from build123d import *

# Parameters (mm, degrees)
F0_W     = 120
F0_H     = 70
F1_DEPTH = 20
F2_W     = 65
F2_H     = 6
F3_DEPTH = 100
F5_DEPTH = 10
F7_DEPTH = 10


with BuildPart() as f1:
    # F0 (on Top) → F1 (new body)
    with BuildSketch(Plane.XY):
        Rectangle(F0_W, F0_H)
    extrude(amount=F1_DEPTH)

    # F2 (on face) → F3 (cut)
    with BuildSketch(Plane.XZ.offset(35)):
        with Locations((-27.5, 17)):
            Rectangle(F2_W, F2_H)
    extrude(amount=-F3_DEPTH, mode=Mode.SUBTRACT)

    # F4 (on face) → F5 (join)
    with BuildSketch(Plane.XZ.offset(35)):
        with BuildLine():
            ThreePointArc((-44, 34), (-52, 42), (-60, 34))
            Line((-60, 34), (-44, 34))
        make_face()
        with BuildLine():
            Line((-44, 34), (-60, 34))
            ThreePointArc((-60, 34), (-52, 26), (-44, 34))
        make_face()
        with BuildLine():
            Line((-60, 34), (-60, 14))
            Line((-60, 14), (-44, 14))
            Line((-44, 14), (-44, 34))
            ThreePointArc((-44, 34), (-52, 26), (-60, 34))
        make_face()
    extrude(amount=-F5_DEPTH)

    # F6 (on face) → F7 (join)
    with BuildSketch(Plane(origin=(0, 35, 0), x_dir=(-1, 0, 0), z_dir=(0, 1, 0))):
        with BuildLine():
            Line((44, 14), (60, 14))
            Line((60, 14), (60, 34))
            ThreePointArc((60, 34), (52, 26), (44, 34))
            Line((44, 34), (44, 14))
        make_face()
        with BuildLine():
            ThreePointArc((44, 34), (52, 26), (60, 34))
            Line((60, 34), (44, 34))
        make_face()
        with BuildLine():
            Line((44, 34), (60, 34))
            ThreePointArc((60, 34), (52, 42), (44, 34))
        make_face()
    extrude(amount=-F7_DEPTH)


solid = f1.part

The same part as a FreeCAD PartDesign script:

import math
import FreeCAD as App
import Part
import Sketcher

V = App.Vector


def add_polygon(sketch, points):
    """Adds a closed chain of lines whose ends are joined by coincident constraints."""
    first, n = sketch.GeometryCount, len(points)
    for a, b in zip(points, points[1:] + points[:1]):
        sketch.addGeometry(Part.LineSegment(App.Vector(*a, 0), App.Vector(*b, 0)), False)
    for i in range(n):
        sketch.addConstraint(Sketcher.Constraint("Coincident", first + i, 2, first + (i + 1) % n, 1))

doc = App.newDocument("Part")
params = doc.addObject("Spreadsheet::Sheet", "Params")
for row, (alias, value) in enumerate([
    ("sketch1_width", "120 mm"),
    ("sketch1_height", "70 mm"),
    ("pad1_length", "20 mm"),
    ("sketch2_width", "65 mm"),
    ("sketch2_height", "6 mm"),
    ("pocket1_length", "100 mm"),
    ("sketch3_radius", "8 mm"),
    ("sketch3_height", "20 mm"),
    ("pad2_length", "10 mm"),
    ("sketch4_radius", "8 mm"),
    ("sketch4_height", "20 mm"),
    ("pad3_length", "10 mm"),
], start=1):
    params.set(f"A{row}", alias)
    params.set(f"B{row}", "=" + value)
    params.setAlias(f"B{row}", alias)

body = doc.addObject("PartDesign::Body", "Body")

sketch1 = body.newObject("Sketcher::SketchObject", "Sketch")
sketch1.AttachmentSupport = (doc.getObject("XY_Plane"), [""])
sketch1.MapMode = "FlatFace"
add_polygon(sketch1, [(-60, 35), (-60, -35), (60, -35), (60, 35)])
sketch1.addConstraint(Sketcher.Constraint("Vertical", 0))
sketch1.addConstraint(Sketcher.Constraint("Horizontal", 1))
sketch1.addConstraint(Sketcher.Constraint("Vertical", 2))
sketch1.addConstraint(Sketcher.Constraint("Horizontal", 3))
sketch1.addConstraint(Sketcher.Constraint("Symmetric", 0, 2, 2, 2, -1, 1))
sketch1.addConstraint(Sketcher.Constraint("DistanceX", 1, 1, 1, 2, 120.0))
sketch1.addConstraint(Sketcher.Constraint("DistanceY", 0, 2, 0, 1, 70.0))
sketch1.setExpression("Constraints[9]", "Params.sketch1_width")
sketch1.setExpression("Constraints[10]", "Params.sketch1_height")
pad1 = body.newObject("PartDesign::Pad", "Pad")
pad1.Profile = sketch1
pad1.setExpression("Length", "Params.pad1_length")

sketch2 = body.newObject("Sketcher::SketchObject", "Sketch001")
sketch2.AttachmentSupport = (doc.getObject("XZ_Plane"), [""])
sketch2.MapMode = "FlatFace"
sketch2.AttachmentOffset = App.Placement(V(0, 0, 35), App.Rotation())
add_polygon(sketch2, [(-60, 20), (-60, 14), (5, 14), (5, 20)])
sketch2.addConstraint(Sketcher.Constraint("Vertical", 0))
sketch2.addConstraint(Sketcher.Constraint("Horizontal", 1))
sketch2.addConstraint(Sketcher.Constraint("Vertical", 2))
sketch2.addConstraint(Sketcher.Constraint("Horizontal", 3))
sketch2.addConstraint(Sketcher.Constraint("DistanceX", 1, 1, 1, 2, 65.0))
sketch2.addConstraint(Sketcher.Constraint("DistanceY", 0, 2, 0, 1, 6.0))
sketch2.addConstraint(Sketcher.Constraint("DistanceX", 0, 2, -1, 1, 60.0))
sketch2.addConstraint(Sketcher.Constraint("DistanceY", -1, 1, 0, 2, 14.0))
sketch2.setExpression("Constraints[8]", "Params.sketch2_width")
sketch2.setExpression("Constraints[9]", "Params.sketch2_height")
pocket1 = body.newObject("PartDesign::Pocket", "Pocket")
pocket1.Profile = sketch2
pocket1.setExpression("Length", "Params.pocket1_length")

sketch3 = body.newObject("Sketcher::SketchObject", "Sketch002")
sketch3.AttachmentSupport = (doc.getObject("XZ_Plane"), [""])
sketch3.MapMode = "FlatFace"
sketch3.AttachmentOffset = App.Placement(V(0, 0, 35), App.Rotation())
sketch3.addGeometry(Part.ArcOfCircle(Part.Circle(V(-52, 34, 0), V(0, 0, 1), 8), math.radians(0), math.radians(180)), False)
sketch3.addGeometry(Part.LineSegment(V(-60, 34, 0), V(-60, 14, 0)), False)
sketch3.addGeometry(Part.LineSegment(V(-60, 14, 0), V(-44, 14, 0)), False)
sketch3.addGeometry(Part.LineSegment(V(-44, 14, 0), V(-44, 34, 0)), False)
sketch3.addConstraint(Sketcher.Constraint("Tangent", 0, 2, 1, 1))
sketch3.addConstraint(Sketcher.Constraint("Coincident", 1, 2, 2, 1))
sketch3.addConstraint(Sketcher.Constraint("Coincident", 2, 2, 3, 1))
sketch3.addConstraint(Sketcher.Constraint("Tangent", 3, 2, 0, 1))
sketch3.addConstraint(Sketcher.Constraint("Vertical", 1))
sketch3.addConstraint(Sketcher.Constraint("Horizontal", 2))
sketch3.addConstraint(Sketcher.Constraint("Vertical", 3))
sketch3.addConstraint(Sketcher.Constraint("Radius", 0, 8.0))
sketch3.addConstraint(Sketcher.Constraint("DistanceY", 1, 2, 1, 1, 20.0))
sketch3.addConstraint(Sketcher.Constraint("DistanceX", 0, 3, -1, 1, 52.0))
sketch3.addConstraint(Sketcher.Constraint("DistanceY", -1, 1, 0, 3, 34.0))
sketch3.setExpression("Constraints[7]", "Params.sketch3_radius")
sketch3.setExpression("Constraints[8]", "Params.sketch3_height")
pad2 = body.newObject("PartDesign::Pad", "Pad001")
pad2.Profile = sketch3
pad2.setExpression("Length", "Params.pad2_length")
pad2.Reversed = True

sketch4 = body.newObject("Sketcher::SketchObject", "Sketch003")
sketch4.AttachmentSupport = (doc.getObject("XZ_Plane"), [""])
sketch4.MapMode = "FlatFace"
sketch4.AttachmentOffset = App.Placement(V(0, 0, -35), App.Rotation())
sketch4.addGeometry(Part.LineSegment(V(-44, 34, 0), V(-44, 14, 0)), False)
sketch4.addGeometry(Part.LineSegment(V(-44, 14, 0), V(-60, 14, 0)), False)
sketch4.addGeometry(Part.LineSegment(V(-60, 14, 0), V(-60, 34, 0)), False)
sketch4.addGeometry(Part.ArcOfCircle(Part.Circle(V(-52, 34, 0), V(0, 0, 1), 8), math.radians(0), math.radians(180)), False)
sketch4.addConstraint(Sketcher.Constraint("Coincident", 0, 2, 1, 1))
sketch4.addConstraint(Sketcher.Constraint("Coincident", 1, 2, 2, 1))
sketch4.addConstraint(Sketcher.Constraint("Tangent", 2, 2, 3, 2))
sketch4.addConstraint(Sketcher.Constraint("Tangent", 3, 1, 0, 1))
sketch4.addConstraint(Sketcher.Constraint("Vertical", 0))
sketch4.addConstraint(Sketcher.Constraint("Horizontal", 1))
sketch4.addConstraint(Sketcher.Constraint("Vertical", 2))
sketch4.addConstraint(Sketcher.Constraint("Radius", 3, 8.0))
sketch4.addConstraint(Sketcher.Constraint("DistanceY", 0, 2, 0, 1, 20.0))
sketch4.addConstraint(Sketcher.Constraint("DistanceX", 3, 3, -1, 1, 52.0))
sketch4.addConstraint(Sketcher.Constraint("DistanceY", -1, 1, 3, 3, 34.0))
sketch4.setExpression("Constraints[7]", "Params.sketch4_radius")
sketch4.setExpression("Constraints[8]", "Params.sketch4_height")
pad3 = body.newObject("PartDesign::Pad", "Pad002")
pad3.Profile = sketch4
pad3.setExpression("Length", "Params.pad3_length")

doc.recompute()
